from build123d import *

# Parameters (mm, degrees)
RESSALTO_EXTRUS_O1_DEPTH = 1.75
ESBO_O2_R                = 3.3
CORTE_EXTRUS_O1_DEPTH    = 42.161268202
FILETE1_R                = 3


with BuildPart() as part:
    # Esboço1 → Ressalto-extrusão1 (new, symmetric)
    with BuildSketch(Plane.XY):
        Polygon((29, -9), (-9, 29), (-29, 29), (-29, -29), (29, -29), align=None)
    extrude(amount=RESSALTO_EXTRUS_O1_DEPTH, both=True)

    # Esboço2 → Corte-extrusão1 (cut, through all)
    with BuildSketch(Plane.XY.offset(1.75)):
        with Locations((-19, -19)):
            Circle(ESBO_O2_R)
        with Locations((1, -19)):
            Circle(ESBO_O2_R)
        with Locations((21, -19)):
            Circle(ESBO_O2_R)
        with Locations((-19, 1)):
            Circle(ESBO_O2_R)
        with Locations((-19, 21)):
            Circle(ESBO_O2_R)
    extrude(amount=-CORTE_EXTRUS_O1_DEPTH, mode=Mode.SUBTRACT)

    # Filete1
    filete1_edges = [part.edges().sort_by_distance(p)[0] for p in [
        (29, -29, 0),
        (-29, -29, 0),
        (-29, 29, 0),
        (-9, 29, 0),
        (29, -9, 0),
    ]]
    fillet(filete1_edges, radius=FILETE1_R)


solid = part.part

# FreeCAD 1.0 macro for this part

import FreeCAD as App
import Part
import Sketcher
from FreeCAD import Vector


def edges_at(feature, points):
    """Names of the edges that pass closest to the given points."""
    edges = feature.Shape.Edges
    near = lambda p: min(range(len(edges)), key=lambda i: edges[i].distToShape(Part.Vertex(*p))[0])
    return sorted({f"Edge{near(p) + 1}" for p in points})


def add_polygon(sketch, points):
    """Adds a closed chain of lines whose ends are joined by coincident constraints."""
    first, n = sketch.GeometryCount, len(points)
    for a, b in zip(points, points[1:] + points[:1]):
        sketch.addGeometry(Part.LineSegment(App.Vector(*a, 0), App.Vector(*b, 0)), False)
    for i in range(n):
        sketch.addConstraint(Sketcher.Constraint("Coincident", first + i, 2, first + (i + 1) % n, 1))

doc = App.newDocument("Part")
params = doc.addObject("Spreadsheet::Sheet", "Params")
for row, (alias, value) in enumerate([
    ("sketch1_width", "20 mm"),
    ("sketch1_width2", "58 mm"),
    ("pad1_length", "3.5 mm"),
    ("sketch2_diameter", "6.6 mm"),
    ("fillet_radius", "3 mm"),
], start=1):
    params.set(f"A{row}", alias)
    params.set(f"B{row}", "=" + value)
    params.setAlias(f"B{row}", alias)

body = doc.addObject("PartDesign::Body", "Body")

sketch1 = body.newObject("Sketcher::SketchObject", "Sketch")
sketch1.AttachmentSupport = (doc.getObject("XY_Plane"), [""])
sketch1.MapMode = "FlatFace"
add_polygon(sketch1, [(29, -9), (-9, 29), (-29, 29), (-29, -29), (29, -29)])
sketch1.addConstraint([
    Sketcher.Constraint("Horizontal", 1),
    Sketcher.Constraint("Vertical", 2),
    Sketcher.Constraint("Horizontal", 3),
    Sketcher.Constraint("Vertical", 4),
    Sketcher.Constraint("Symmetric", 1, 2, 3, 2, -1, 1),
    Sketcher.Constraint("Equal", 3, 2),
    Sketcher.Constraint("Equal", 1, 4),
    Sketcher.Constraint("DistanceX", 1, 2, 1, 1, 20.0),
    Sketcher.Constraint("DistanceX", 3, 1, 3, 2, 58.0),
])
sketch1.setExpression("Constraints[12]", "Params.sketch1_width")
sketch1.setExpression("Constraints[13]", "Params.sketch1_width2")
pad1 = body.newObject("PartDesign::Pad", "Pad")
pad1.Profile = sketch1
pad1.setExpression("Length", "Params.pad1_length")
pad1.Midplane = True

sketch2 = body.newObject("Sketcher::SketchObject", "Sketch001")
sketch2.AttachmentSupport = (doc.getObject("XY_Plane"), [""])
sketch2.MapMode = "FlatFace"
sketch2.AttachmentOffset = App.Placement(Vector(0, 0, 1.75), App.Rotation())
sketch2.addGeometry([
    Part.Circle(Vector(-19, -19, 0), Vector(0, 0, 1), 3.3),
    Part.Circle(Vector(1, -19, 0), Vector(0, 0, 1), 3.3),
    Part.Circle(Vector(21, -19, 0), Vector(0, 0, 1), 3.3),
    Part.Circle(Vector(-19, 1, 0), Vector(0, 0, 1), 3.3),
    Part.Circle(Vector(-19, 21, 0), Vector(0, 0, 1), 3.3),
], False)
sketch2.addConstraint([
    Sketcher.Constraint("Equal", 0, 1),
    Sketcher.Constraint("Equal", 1, 2),
    Sketcher.Constraint("Equal", 2, 3),
    Sketcher.Constraint("Equal", 3, 4),
    Sketcher.Constraint("Horizontal", 0, 3, 1, 3),
    Sketcher.Constraint("Horizontal", 1, 3, 2, 3),
    Sketcher.Constraint("Vertical", 0, 3, 3, 3),
    Sketcher.Constraint("Vertical", 3, 3, 4, 3),
    Sketcher.Constraint("Diameter", 0, 6.6),
    Sketcher.Constraint("DistanceX", 0, 3, -1, 1, 19.0),
    Sketcher.Constraint("DistanceY", 0, 3, -1, 1, 19.0),
    Sketcher.Constraint("DistanceX", -1, 1, 1, 3, 1.0),
    Sketcher.Constraint("DistanceX", -1, 1, 2, 3, 21.0),
    Sketcher.Constraint("DistanceY", -1, 1, 3, 3, 1.0),
    Sketcher.Constraint("DistanceY", -1, 1, 4, 3, 21.0),
])
sketch2.setExpression("Constraints[8]", "Params.sketch2_diameter")
pocket1 = body.newObject("PartDesign::Pocket", "Pocket")
pocket1.Profile = sketch2
pocket1.Type = "ThroughAll"
doc.recompute()

fillet = body.newObject("PartDesign::Fillet", "Fillet")
fillet.Base = (pocket1, edges_at(pocket1, [
    (29, -29, 0),
    (-29, -29, 0),
    (-29, 29, 0),
    (-9, 29, 0),
    (29, -9, 0),
]))
fillet.setExpression("Radius", "Params.fillet_radius")

doc.recompute()
